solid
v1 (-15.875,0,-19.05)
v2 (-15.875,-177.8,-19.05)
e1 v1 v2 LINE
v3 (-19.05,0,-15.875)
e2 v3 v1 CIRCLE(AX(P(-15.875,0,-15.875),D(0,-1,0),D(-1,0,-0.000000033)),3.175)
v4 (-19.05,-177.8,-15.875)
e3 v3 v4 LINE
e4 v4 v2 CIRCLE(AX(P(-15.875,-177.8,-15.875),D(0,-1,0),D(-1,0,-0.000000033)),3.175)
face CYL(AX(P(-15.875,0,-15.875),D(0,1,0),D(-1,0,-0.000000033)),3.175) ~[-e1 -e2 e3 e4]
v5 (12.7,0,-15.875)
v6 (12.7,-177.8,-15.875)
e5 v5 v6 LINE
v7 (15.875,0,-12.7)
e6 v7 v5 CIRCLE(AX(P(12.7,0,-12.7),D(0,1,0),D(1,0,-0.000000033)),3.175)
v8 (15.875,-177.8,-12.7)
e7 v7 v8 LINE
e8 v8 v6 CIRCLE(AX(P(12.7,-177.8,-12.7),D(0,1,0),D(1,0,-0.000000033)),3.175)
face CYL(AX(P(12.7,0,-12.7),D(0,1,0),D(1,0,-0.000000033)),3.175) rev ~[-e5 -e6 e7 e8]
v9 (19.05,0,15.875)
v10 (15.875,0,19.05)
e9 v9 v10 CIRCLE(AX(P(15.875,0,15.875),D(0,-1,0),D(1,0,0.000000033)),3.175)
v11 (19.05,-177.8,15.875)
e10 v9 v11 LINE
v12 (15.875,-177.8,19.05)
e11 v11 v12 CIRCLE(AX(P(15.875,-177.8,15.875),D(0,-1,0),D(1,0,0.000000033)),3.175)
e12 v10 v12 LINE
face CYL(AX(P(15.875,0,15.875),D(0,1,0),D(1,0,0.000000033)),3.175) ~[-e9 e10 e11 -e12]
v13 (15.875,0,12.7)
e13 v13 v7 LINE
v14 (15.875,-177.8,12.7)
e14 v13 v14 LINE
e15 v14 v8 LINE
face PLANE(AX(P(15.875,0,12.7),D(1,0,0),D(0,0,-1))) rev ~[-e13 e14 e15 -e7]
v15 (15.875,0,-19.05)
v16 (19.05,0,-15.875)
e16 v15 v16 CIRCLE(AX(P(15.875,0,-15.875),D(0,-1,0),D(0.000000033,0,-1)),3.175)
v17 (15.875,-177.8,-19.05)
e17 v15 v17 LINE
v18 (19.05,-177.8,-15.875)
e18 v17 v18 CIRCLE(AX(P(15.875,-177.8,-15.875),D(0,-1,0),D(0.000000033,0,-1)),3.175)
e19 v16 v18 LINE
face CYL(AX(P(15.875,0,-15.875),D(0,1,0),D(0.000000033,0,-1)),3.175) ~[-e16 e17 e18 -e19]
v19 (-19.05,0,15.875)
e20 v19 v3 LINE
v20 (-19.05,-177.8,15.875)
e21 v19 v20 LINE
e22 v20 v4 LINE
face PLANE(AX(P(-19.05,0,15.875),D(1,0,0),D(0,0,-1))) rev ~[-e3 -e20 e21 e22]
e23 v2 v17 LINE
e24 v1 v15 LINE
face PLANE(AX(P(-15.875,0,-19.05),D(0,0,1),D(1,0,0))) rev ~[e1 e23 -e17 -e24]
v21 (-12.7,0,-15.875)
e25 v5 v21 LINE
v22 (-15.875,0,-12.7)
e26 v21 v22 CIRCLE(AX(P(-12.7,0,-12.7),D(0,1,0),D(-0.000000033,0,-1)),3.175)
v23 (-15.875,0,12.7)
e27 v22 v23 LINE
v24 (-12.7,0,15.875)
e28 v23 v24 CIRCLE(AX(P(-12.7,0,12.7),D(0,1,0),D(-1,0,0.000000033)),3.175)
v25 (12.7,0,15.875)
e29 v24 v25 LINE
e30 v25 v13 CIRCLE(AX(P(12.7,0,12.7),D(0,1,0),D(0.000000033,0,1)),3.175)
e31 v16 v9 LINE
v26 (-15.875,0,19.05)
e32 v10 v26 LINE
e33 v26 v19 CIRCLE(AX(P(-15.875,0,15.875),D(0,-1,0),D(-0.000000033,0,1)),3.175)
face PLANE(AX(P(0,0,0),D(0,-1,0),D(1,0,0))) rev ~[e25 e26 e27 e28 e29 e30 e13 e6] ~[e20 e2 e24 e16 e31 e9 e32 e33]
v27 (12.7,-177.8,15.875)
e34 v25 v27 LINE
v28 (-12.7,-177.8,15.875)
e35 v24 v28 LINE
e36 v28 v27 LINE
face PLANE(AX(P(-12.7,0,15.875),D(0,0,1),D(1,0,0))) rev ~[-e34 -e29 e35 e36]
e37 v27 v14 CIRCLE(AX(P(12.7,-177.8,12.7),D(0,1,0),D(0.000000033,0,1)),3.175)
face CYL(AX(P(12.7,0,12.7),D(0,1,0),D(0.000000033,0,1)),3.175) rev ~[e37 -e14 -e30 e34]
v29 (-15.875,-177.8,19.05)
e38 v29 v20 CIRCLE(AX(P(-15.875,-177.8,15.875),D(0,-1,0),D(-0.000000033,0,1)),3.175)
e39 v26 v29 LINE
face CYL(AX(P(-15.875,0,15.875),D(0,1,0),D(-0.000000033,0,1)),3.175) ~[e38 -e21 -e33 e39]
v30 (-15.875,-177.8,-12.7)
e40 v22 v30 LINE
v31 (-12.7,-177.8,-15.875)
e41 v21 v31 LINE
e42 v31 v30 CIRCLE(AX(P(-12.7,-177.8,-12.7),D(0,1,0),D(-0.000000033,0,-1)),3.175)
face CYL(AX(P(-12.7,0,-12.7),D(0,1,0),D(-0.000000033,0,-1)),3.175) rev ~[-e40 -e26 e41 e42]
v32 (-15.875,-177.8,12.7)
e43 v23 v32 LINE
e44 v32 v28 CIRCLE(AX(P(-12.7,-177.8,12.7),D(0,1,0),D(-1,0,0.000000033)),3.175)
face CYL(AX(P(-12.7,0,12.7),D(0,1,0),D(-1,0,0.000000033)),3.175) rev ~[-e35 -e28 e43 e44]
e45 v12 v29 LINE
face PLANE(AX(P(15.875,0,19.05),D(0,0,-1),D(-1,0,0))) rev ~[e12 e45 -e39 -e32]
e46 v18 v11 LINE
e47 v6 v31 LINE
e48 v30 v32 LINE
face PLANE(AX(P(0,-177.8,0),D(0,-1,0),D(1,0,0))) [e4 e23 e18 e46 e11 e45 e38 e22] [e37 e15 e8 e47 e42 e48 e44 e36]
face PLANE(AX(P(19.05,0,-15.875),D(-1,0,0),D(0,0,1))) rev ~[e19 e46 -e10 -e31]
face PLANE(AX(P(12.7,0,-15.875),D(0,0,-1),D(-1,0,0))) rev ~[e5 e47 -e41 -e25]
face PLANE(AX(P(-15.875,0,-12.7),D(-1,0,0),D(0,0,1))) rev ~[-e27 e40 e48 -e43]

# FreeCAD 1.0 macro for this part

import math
import FreeCAD as App
import Part
import Sketcher
Q = App.Units.Quantity

doc = App.newDocument("Part")
params = doc.addObject("Spreadsheet::Sheet", "Params")
for row, (alias, value) in enumerate([
    ("sketch1_width", "1 in"),
    ("sketch1_radius", "0.125 in"),
    ("pad1_length", "7 in"),
], start=1):
    params.set(f"A{row}", alias)
    params.set(f"B{row}", "=" + value)
    params.setAlias(f"B{row}", alias)

body = doc.addObject("PartDesign::Body", "Body")

# Sketch on XZ plane
sketch1 = doc.addObject("Sketcher::SketchObject", "Sketch")
body.addObject(sketch1)
sketch1.AttachmentSupport = (doc.XZ_Plane, [""])
sketch1.MapMode = "FlatFace"
sketch1.addGeometry([
    Part.ArcOfCircle(Part.Circle(App.Vector(15.9, 15.9, 0), App.Vector(0, 0, 1), 3.2), math.radians(0), math.radians(90)),  # 0
    Part.LineSegment(App.Vector(15.9, 19.1, 0), App.Vector(-15.9, 19.1, 0)),  # 1
    Part.ArcOfCircle(Part.Circle(App.Vector(-15.9, 15.9, 0), App.Vector(0, 0, 1), 3.2), math.radians(90), math.radians(180)),  # 2
    Part.LineSegment(App.Vector(-19.1, 15.9, 0), App.Vector(-19.1, -15.9, 0)),  # 3
    Part.ArcOfCircle(Part.Circle(App.Vector(-15.9, -15.9, 0), App.Vector(0, 0, 1), 3.2), math.radians(-180), math.radians(-90)),  # 4
    Part.LineSegment(App.Vector(-15.9, -19.1, 0), App.Vector(15.9, -19.1, 0)),  # 5
    Part.ArcOfCircle(Part.Circle(App.Vector(15.9, -15.9, 0), App.Vector(0, 0, 1), 3.2), math.radians(-90), math.radians(0)),  # 6
    Part.LineSegment(App.Vector(19.1, -15.9, 0), App.Vector(19.1, 15.9, 0)),  # 7
    Part.ArcOfCircle(Part.Circle(App.Vector(-12.7, 12.7, 0), App.Vector(0, 0, 1), 3.2), math.radians(90), math.radians(180)),  # 8
    Part.LineSegment(App.Vector(-12.7, 15.9, 0), App.Vector(12.7, 15.9, 0)),  # 9
    Part.ArcOfCircle(Part.Circle(App.Vector(12.7, 12.7, 0), App.Vector(0, 0, 1), 3.2), math.radians(0), math.radians(90)),  # 10
    Part.LineSegment(App.Vector(15.9, 12.7, 0), App.Vector(15.9, -12.7, 0)),  # 11
    Part.ArcOfCircle(Part.Circle(App.Vector(12.7, -12.7, 0), App.Vector(0, 0, 1), 3.2), math.radians(-90), math.radians(0)),  # 12
    Part.LineSegment(App.Vector(12.7, -15.9, 0), App.Vector(-12.7, -15.9, 0)),  # 13
    Part.ArcOfCircle(Part.Circle(App.Vector(-12.7, -12.7, 0), App.Vector(0, 0, 1), 3.2), math.radians(-180), math.radians(-90)),  # 14
    Part.LineSegment(App.Vector(-15.9, -12.7, 0), App.Vector(-15.9, 12.7, 0)),  # 15
], False)
sketch1.addConstraint([
    Sketcher.Constraint("Tangent", 0, 2, 1, 1),
    Sketcher.Constraint("Tangent", 1, 2, 2, 1),
    Sketcher.Constraint("Tangent", 2, 2, 3, 1),
    Sketcher.Constraint("Tangent", 3, 2, 4, 1),
    Sketcher.Constraint("Tangent", 4, 2, 5, 1),
    Sketcher.Constraint("Tangent", 5, 2, 6, 1),
    Sketcher.Constraint("Tangent", 6, 2, 7, 1),
    Sketcher.Constraint("Tangent", 7, 2, 0, 1),
    Sketcher.Constraint("Tangent", 8, 1, 9, 1),
    Sketcher.Constraint("Tangent", 9, 2, 10, 2),
    Sketcher.Constraint("Tangent", 10, 1, 11, 1),
    Sketcher.Constraint("Tangent", 11, 2, 12, 2),
    Sketcher.Constraint("Tangent", 12, 1, 13, 1),
    Sketcher.Constraint("Tangent", 13, 2, 14, 2),
    Sketcher.Constraint("Tangent", 14, 1, 15, 1),
    Sketcher.Constraint("Tangent", 15, 2, 8, 2),
    Sketcher.Constraint("Horizontal", 1),
    Sketcher.Constraint("Vertical", 3),
    Sketcher.Constraint("Horizontal", 5),
    Sketcher.Constraint("Vertical", 7),
    Sketcher.Constraint("Horizontal", 9),
    Sketcher.Constraint("Vertical", 11),
    Sketcher.Constraint("Horizontal", 13),
    Sketcher.Constraint("Vertical", 15),
    Sketcher.Constraint("Equal", 0, 2),
    Sketcher.Constraint("Equal", 2, 4),
    Sketcher.Constraint("Equal", 4, 6),
    Sketcher.Constraint("Equal", 6, 8),
    Sketcher.Constraint("Equal", 8, 10),
    Sketcher.Constraint("Equal", 10, 12),
    Sketcher.Constraint("Equal", 12, 14),
    Sketcher.Constraint("Symmetric", 0, 3, 4, 3, -1, 1),
    Sketcher.Constraint("Symmetric", 8, 3, 12, 3, -1, 1),
    Sketcher.Constraint("Horizontal", 7, 2, 8, 1),
    Sketcher.Constraint("Vertical", 5, 2, 10, 1),
    Sketcher.Constraint("Equal", 5, 3),
    Sketcher.Constraint("DistanceX", 9, 1, 9, 2, Q("1 in")),
    Sketcher.Constraint("Radius", 0, Q("0.125 in")),
])
sketch1.setExpression("Constraints[36]", "Params.sketch1_width")
sketch1.setExpression("Constraints[37]", "Params.sketch1_radius")
pad1 = doc.addObject("PartDesign::Pad", "Pad")
body.addObject(pad1)
pad1.Profile = sketch1
pad1.setExpression("Length", "Params.pad1_length")

doc.recompute()
